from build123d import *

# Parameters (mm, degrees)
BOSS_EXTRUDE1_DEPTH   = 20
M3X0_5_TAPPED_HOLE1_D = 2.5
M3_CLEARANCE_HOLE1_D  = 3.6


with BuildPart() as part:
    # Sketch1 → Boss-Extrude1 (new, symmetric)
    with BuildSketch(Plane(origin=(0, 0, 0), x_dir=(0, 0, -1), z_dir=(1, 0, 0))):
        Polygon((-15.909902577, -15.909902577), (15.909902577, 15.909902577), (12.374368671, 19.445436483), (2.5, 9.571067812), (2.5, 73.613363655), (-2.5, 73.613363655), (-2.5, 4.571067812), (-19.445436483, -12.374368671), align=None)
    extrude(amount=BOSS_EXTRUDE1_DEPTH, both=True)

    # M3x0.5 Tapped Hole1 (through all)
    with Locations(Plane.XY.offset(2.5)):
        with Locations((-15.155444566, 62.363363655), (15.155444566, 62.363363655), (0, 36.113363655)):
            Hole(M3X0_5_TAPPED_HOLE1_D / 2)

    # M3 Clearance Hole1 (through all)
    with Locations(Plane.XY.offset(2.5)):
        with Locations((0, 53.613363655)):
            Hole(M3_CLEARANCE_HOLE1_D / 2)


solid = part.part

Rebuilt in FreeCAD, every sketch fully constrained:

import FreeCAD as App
import Part
import Sketcher
Q = App.Units.Quantity

doc = App.newDocument("Part")
body = doc.addObject("PartDesign::Body", "Body")

# Sketch on YZ plane
sketch1 = body.newObject("Sketcher::SketchObject", "Sketch")
sketch1.AttachmentSupport = (doc.getObject("YZ_Plane"), [""])
sketch1.MapMode = "FlatFace"
sketch1.addGeometry([
    Part.LineSegment(App.Vector(-16, 16, 0), App.Vector(16, -16, 0)),  # 0
    Part.LineSegment(App.Vector(16, -16, 0), App.Vector(19, -12, 0)),  # 1
    Part.LineSegment(App.Vector(19, -12, 0), App.Vector(10, -2, 0)),  # 2
    Part.LineSegment(App.Vector(10, -2, 0), App.Vector(74, -2, 0)),  # 3
    Part.LineSegment(App.Vector(74, -2, 0), App.Vector(74, 2, 0)),  # 4
    Part.LineSegment(App.Vector(74, 2, 0), App.Vector(5, 2, 0)),  # 5
    Part.LineSegment(App.Vector(5, 2, 0), App.Vector(-12, 19, 0)),  # 6
    Part.LineSegment(App.Vector(-12, 19, 0), App.Vector(-16, 16, 0)),  # 7
], False)
sketch1.addConstraint([
    Sketcher.Constraint("Coincident", 0, 2, 1, 1),
    Sketcher.Constraint("Coincident", 1, 2, 2, 1),
    Sketcher.Constraint("Coincident", 2, 2, 3, 1),
    Sketcher.Constraint("Coincident", 3, 2, 4, 1),
    Sketcher.Constraint("Coincident", 4, 2, 5, 1),
    Sketcher.Constraint("Coincident", 5, 2, 6, 1),
    Sketcher.Constraint("Coincident", 6, 2, 7, 1),
    Sketcher.Constraint("Coincident", 7, 2, 0, 1),
    Sketcher.Constraint("Horizontal", 3),
    Sketcher.Constraint("Vertical", 4),
    Sketcher.Constraint("Horizontal", 5),
    Sketcher.Constraint("Symmetric", 0, 2, 7, 2, -1, 1),
    Sketcher.Constraint("Perpendicular", 0, 1),
    Sketcher.Constraint("Perpendicular", 1, 2),
    Sketcher.Constraint("Parallel", 2, 6),
    Sketcher.Constraint("Perpendicular", 6, 7),
    Sketcher.Constraint("Equal", 1, 7),
    Sketcher.Constraint("DistanceY", 4, 1, 4, 2, 5.0),
    Sketcher.Constraint("Angle", 0, Q("-45 deg")),
    Sketcher.Constraint("Distance", 0, 45.0),
    Sketcher.Constraint("Distance", 1, 5.0),
    Sketcher.Constraint("DistanceY", 2, 2, -1, 1, 2.5),
    Sketcher.Constraint("DistanceX", 3, 1, 3, 2, 64.042296),
])
pad1 = body.newObject("PartDesign::Pad", "Pad")
pad1.Profile = sketch1
pad1.Length = 40
pad1.Midplane = True

# Sketch on XY plane
sketch2 = body.newObject("Sketcher::SketchObject", "Sketch001")
sketch2.AttachmentSupport = (doc.getObject("XY_Plane"), [""])
sketch2.MapMode = "FlatFace"
sketch2.AttachmentOffset = App.Placement(App.Vector(0, 0, 2.5), App.Rotation())
sketch2.addGeometry([
    Part.Circle(App.Vector(-15.2, 62.4, 0), App.Vector(0, 0, 1), 1.2),
    Part.Circle(App.Vector(15.2, 62.4, 0), App.Vector(0, 0, 1), 1.2),
    Part.Circle(App.Vector(0, 36.1, 0), App.Vector(0, 0, 1), 1.2),
], False)
sketch2.addConstraint([
    Sketcher.Constraint("Equal", 0, 1),
    Sketcher.Constraint("Equal", 1, 2),
    Sketcher.Constraint("Symmetric", 0, 3, 1, 3, -2),
    Sketcher.Constraint("PointOnObject", 2, 3, -2),
    Sketcher.Constraint("Diameter", 0, 2.5),
    Sketcher.Constraint("DistanceY", 2, 3, 0, 3, 26.25),
    Sketcher.Constraint("DistanceX", 0, 3, 1, 3, 30.310889),
    Sketcher.Constraint("DistanceY", -1, 1, 0, 3, 62.363364),
])
doc.recompute()
hole = body.newObject("PartDesign::Hole", "Hole")
hole.Profile = sketch2
hole.ThreadType = "None"
hole.Diameter = 2.5
hole.DepthType = "ThroughAll"

# Sketch on XY plane
sketch3 = body.newObject("Sketcher::SketchObject", "Sketch002")
sketch3.AttachmentSupport = (doc.getObject("XY_Plane"), [""])
sketch3.MapMode = "FlatFace"
sketch3.AttachmentOffset = App.Placement(App.Vector(0, 0, 2.5), App.Rotation())
sketch3.addGeometry(Part.Circle(App.Vector(0, 53.6, 0), App.Vector(0, 0, 1), 1.8), False)
sketch3.addConstraint([
    Sketcher.Constraint("PointOnObject", 0, 3, -2),
    Sketcher.Constraint("Diameter", 0, 3.6),
    Sketcher.Constraint("DistanceY", -1, 1, 0, 3, 53.613364),
])
doc.recompute()
hole2 = body.newObject("PartDesign::Hole", "Hole001")
hole2.Profile = sketch3
hole2.ThreadType = "None"
hole2.Diameter = 3.6
hole2.DepthType = "ThroughAll"

doc.recompute()
